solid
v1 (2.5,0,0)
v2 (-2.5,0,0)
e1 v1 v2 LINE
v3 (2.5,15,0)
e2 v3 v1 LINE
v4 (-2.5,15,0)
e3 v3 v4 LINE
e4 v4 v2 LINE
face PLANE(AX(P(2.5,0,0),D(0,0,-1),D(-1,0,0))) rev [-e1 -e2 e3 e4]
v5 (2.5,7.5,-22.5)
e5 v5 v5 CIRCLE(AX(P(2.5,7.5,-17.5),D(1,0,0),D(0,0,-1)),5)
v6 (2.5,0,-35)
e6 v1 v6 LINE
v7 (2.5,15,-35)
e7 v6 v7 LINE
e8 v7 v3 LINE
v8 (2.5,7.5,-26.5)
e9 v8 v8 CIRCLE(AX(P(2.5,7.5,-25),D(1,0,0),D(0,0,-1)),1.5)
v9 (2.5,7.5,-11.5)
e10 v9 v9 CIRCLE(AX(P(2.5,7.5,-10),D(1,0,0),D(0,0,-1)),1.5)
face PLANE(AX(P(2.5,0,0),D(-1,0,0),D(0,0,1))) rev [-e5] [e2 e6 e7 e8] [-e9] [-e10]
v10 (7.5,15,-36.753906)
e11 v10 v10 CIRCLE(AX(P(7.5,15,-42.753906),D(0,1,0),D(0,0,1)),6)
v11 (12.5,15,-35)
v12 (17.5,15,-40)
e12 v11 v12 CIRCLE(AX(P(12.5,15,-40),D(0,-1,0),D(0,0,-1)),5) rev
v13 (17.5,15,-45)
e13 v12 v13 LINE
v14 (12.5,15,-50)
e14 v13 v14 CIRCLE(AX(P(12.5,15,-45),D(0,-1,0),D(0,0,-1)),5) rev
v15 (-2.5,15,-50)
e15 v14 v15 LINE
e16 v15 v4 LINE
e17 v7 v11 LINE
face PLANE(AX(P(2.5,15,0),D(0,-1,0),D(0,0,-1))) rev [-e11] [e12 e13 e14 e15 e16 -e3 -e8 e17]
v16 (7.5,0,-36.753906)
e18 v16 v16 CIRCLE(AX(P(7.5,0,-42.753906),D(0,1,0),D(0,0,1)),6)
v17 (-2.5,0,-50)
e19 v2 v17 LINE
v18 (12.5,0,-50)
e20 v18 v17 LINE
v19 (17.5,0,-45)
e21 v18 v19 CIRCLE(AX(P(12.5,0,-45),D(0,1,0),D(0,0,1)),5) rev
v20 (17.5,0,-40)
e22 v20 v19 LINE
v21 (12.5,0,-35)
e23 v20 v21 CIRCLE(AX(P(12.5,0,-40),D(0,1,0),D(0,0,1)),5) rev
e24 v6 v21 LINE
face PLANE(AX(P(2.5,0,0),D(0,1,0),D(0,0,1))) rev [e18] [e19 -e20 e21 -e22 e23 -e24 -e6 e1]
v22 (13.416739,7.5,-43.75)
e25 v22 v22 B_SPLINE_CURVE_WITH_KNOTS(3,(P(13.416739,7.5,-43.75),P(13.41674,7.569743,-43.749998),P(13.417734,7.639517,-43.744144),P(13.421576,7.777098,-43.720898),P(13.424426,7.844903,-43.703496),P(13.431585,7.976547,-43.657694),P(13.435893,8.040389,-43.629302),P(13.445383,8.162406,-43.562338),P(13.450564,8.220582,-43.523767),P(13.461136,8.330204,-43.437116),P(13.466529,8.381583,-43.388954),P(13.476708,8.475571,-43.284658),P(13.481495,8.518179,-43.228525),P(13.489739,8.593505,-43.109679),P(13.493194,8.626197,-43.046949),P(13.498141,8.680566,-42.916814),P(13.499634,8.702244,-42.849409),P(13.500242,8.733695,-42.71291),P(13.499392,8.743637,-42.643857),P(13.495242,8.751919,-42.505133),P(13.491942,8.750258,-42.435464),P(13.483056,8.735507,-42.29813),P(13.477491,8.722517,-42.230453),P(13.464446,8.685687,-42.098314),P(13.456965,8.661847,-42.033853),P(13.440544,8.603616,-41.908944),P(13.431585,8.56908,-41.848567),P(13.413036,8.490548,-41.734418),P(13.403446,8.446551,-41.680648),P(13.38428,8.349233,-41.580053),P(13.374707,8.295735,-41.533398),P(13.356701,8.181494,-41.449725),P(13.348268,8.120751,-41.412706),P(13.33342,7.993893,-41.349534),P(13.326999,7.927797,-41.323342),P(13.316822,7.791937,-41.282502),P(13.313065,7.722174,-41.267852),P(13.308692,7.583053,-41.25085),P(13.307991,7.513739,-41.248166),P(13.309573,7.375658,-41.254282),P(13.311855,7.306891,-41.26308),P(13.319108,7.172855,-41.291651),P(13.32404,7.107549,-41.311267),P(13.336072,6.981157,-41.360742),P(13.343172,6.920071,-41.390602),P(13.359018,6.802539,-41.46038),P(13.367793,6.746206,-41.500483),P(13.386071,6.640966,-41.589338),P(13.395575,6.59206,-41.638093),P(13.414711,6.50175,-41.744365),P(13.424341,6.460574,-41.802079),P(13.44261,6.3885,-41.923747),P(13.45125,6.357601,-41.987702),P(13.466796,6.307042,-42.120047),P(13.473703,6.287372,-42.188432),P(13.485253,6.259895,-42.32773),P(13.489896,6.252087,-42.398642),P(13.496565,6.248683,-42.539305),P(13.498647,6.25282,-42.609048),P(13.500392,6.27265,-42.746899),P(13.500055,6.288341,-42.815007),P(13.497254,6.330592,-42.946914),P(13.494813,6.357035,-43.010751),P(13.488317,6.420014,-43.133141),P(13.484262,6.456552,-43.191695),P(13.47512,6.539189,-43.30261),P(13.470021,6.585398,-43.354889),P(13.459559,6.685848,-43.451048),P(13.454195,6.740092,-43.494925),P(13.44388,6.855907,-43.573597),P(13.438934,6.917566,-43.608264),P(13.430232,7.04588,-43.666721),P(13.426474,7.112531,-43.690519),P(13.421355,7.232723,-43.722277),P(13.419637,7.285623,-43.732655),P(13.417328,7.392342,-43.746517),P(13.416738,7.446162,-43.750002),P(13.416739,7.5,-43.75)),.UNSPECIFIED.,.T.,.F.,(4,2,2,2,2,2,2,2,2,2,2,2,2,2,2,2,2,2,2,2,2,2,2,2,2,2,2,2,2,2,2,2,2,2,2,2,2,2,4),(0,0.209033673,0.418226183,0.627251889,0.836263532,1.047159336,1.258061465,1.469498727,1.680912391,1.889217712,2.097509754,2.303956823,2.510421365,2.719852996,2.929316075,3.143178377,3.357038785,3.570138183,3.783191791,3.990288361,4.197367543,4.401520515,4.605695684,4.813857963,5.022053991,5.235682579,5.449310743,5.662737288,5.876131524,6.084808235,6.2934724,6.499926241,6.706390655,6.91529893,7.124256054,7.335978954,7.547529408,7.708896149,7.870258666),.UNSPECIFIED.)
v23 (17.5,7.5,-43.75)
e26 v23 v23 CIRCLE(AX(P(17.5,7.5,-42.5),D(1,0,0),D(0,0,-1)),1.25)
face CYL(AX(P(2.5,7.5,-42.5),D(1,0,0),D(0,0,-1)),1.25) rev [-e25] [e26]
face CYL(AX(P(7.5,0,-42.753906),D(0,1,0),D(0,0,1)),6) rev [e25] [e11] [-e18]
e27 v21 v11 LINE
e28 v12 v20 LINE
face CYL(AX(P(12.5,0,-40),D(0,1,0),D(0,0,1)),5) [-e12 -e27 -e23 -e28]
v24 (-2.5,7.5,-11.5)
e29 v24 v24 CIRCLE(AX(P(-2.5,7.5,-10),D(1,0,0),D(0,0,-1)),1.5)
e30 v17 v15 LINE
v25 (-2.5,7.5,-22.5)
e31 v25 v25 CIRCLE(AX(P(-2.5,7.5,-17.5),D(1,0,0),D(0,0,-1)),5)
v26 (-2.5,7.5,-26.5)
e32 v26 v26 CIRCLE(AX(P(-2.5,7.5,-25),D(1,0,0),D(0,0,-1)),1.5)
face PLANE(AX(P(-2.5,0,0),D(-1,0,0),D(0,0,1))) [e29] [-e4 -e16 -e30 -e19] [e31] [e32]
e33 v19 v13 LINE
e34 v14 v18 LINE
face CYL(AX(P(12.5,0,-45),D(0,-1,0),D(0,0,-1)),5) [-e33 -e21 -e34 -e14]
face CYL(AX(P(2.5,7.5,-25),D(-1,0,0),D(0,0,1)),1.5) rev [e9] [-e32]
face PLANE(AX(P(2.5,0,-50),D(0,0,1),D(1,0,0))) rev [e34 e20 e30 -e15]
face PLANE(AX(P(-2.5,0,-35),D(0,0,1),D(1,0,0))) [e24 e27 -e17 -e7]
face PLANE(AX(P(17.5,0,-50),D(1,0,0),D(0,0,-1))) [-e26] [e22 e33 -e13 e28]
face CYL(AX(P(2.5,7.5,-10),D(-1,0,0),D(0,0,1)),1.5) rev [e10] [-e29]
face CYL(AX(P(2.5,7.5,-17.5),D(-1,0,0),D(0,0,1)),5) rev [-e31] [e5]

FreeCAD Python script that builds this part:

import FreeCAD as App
import Part
import Sketcher


def edges_at(feature, points):
    """Names of the edges that pass closest to the given points."""
    edges = feature.Shape.Edges
    near = lambda p: min(range(len(edges)), key=lambda i: edges[i].distToShape(Part.Vertex(*p))[0])
    return sorted({f"Edge{near(p) + 1}" for p in points})

doc = App.newDocument("Part")
body = doc.addObject("PartDesign::Body", "Body")

# Sketch on YZ plane
sketch1 = body.newObject("Sketcher::SketchObject", "Sketch")
sketch1.AttachmentSupport = (doc.getObject("YZ_Plane"), [""])
sketch1.MapMode = "FlatFace"
sketch1.addGeometry([
    Part.LineSegment(App.Vector(15, 0, 0), App.Vector(0, 0, 0)),  # 0
    Part.LineSegment(App.Vector(0, 0, 0), App.Vector(0, -50, 0)),  # 1
    Part.LineSegment(App.Vector(0, -50, 0), App.Vector(15, -50, 0)),  # 2
    Part.LineSegment(App.Vector(15, -50, 0), App.Vector(15, 0, 0)),  # 3
    Part.Circle(App.Vector(7.5, -10, 0), App.Vector(0, 0, 1), 1.5),  # 4
    Part.Circle(App.Vector(7.5, -17.5, 0), App.Vector(0, 0, 1), 5),  # 5
    Part.Circle(App.Vector(7.5, -25, 0), App.Vector(0, 0, 1), 1.5),  # 6
], False)
sketch1.addConstraint([
    Sketcher.Constraint("Coincident", 0, 2, 1, 1),
    Sketcher.Constraint("Coincident", 1, 2, 2, 1),
    Sketcher.Constraint("Coincident", 2, 2, 3, 1),
    Sketcher.Constraint("Coincident", 3, 2, 0, 1),
    Sketcher.Constraint("Horizontal", 0),
    Sketcher.Constraint("Vertical", 1),
    Sketcher.Constraint("Horizontal", 2),
    Sketcher.Constraint("Vertical", 3),
    Sketcher.Constraint("Coincident", 0, 2, -1, 1),
    Sketcher.Constraint("Equal", 4, 6),
    Sketcher.Constraint("Vertical", 4, 3, 5, 3),
    Sketcher.Constraint("Vertical", 5, 3, 6, 3),
    Sketcher.Constraint("Diameter", 4, 3.0),
    Sketcher.Constraint("Diameter", 5, 10.0),
    Sketcher.Constraint("DistanceX", 0, 2, 0, 1, 15.0),
    Sketcher.Constraint("DistanceY", 1, 2, 1, 1, 50.0),
    Sketcher.Constraint("DistanceY", 4, 3, -1, 1, 10.0),
    Sketcher.Constraint("DistanceY", 6, 3, -1, 1, 25.0),
    Sketcher.Constraint("DistanceX", -1, 1, 4, 3, 7.5),
    Sketcher.Constraint("DistanceY", 5, 3, -1, 1, 17.5),
])
pad1 = body.newObject("PartDesign::Pad", "Pad")
pad1.Profile = sketch1
pad1.Length = 5
pad1.Midplane = True

# Sketch on XZ plane
sketch2 = body.newObject("Sketcher::SketchObject", "Sketch001")
sketch2.AttachmentSupport = (doc.getObject("XZ_Plane"), [""])
sketch2.MapMode = "FlatFace"
sketch2.AttachmentOffset = App.Placement(App.Vector(0, 0, -15), App.Rotation())
sketch2.addGeometry(Part.Circle(App.Vector(8, -43, 0), App.Vector(0, 0, 1), 6), False)
sketch2.addConstraint([
    Sketcher.Constraint("Diameter", 0, 12.0),
    Sketcher.Constraint("DistanceX", -1, 1, 0, 3, 7.5),
    Sketcher.Constraint("DistanceY", 0, 3, -1, 1, 42.753906),
])
pocket1 = body.newObject("PartDesign::Pocket", "Pocket")
pocket1.Profile = sketch2
pocket1.Length = 1000
pocket1.Reversed = True

# Sketch on XZ plane
sketch3 = body.newObject("Sketcher::SketchObject", "Sketch002")
sketch3.AttachmentSupport = (doc.getObject("XZ_Plane"), [""])
sketch3.MapMode = "FlatFace"
sketch3.AttachmentOffset = App.Placement(App.Vector(0, 0, -15), App.Rotation())
sketch3.addGeometry([
    Part.LineSegment(App.Vector(-2, -50, 0), App.Vector(-2, -35, 0)),
    Part.LineSegment(App.Vector(-2, -35, 0), App.Vector(18, -35, 0)),
    Part.LineSegment(App.Vector(18, -35, 0), App.Vector(18, -50, 0)),
    Part.LineSegment(App.Vector(18, -50, 0), App.Vector(-2, -50, 0)),
], False)
sketch3.addConstraint([
    Sketcher.Constraint("Coincident", 0, 2, 1, 1),
    Sketcher.Constraint("Coincident", 1, 2, 2, 1),
    Sketcher.Constraint("Coincident", 2, 2, 3, 1),
    Sketcher.Constraint("Coincident", 3, 2, 0, 1),
    Sketcher.Constraint("Vertical", 0),
    Sketcher.Constraint("Horizontal", 1),
    Sketcher.Constraint("Vertical", 2),
    Sketcher.Constraint("Horizontal", 3),
    Sketcher.Constraint("DistanceX", 1, 1, 1, 2, 20.0),
    Sketcher.Constraint("DistanceY", 0, 1, 0, 2, 15.0),
    Sketcher.Constraint("DistanceY", 0, 2, -1, 1, 35.0),
    Sketcher.Constraint("DistanceX", 0, 2, -1, 1, 2.5),
])
pad2 = body.newObject("PartDesign::Pad", "Pad001")
pad2.Profile = sketch3
pad2.Length = 15

# Sketch on XZ plane
sketch4 = body.newObject("Sketcher::SketchObject", "Sketch003")
sketch4.AttachmentSupport = (doc.getObject("XZ_Plane"), [""])
sketch4.MapMode = "FlatFace"
sketch4.AttachmentOffset = App.Placement(App.Vector(0, 0, -15), App.Rotation())
sketch4.addGeometry(Part.Circle(App.Vector(8, -43, 0), App.Vector(0, 0, 1), 6), False)
sketch4.addConstraint([
    Sketcher.Constraint("Diameter", 0, 12.0),
    Sketcher.Constraint("DistanceX", -1, 1, 0, 3, 7.5),
    Sketcher.Constraint("DistanceY", 0, 3, -1, 1, 42.753906),
])
pocket2 = body.newObject("PartDesign::Pocket", "Pocket001")
pocket2.Profile = sketch4
pocket2.Length = 15
pocket2.Reversed = True
doc.recompute()

fillet = body.newObject("PartDesign::Fillet", "Fillet")
fillet.Base = (pocket2, edges_at(pocket2, [(17.5, 7.5, -35), (17.5, 7.5, -50)]))
fillet.Radius = 5

# Sketch on YZ plane
sketch5 = body.newObject("Sketcher::SketchObject", "Sketch004")
sketch5.AttachmentSupport = (doc.getObject("YZ_Plane"), [""])
sketch5.MapMode = "FlatFace"
sketch5.AttachmentOffset = App.Placement(App.Vector(0, 0, 17.5), App.Rotation())
sketch5.addGeometry(Part.Circle(App.Vector(7.5, -42.5, 0), App.Vector(0, 0, 1), 1.2), False)
sketch5.addConstraint([
    Sketcher.Constraint("Diameter", 0, 2.5),
    Sketcher.Constraint("DistanceX", -1, 1, 0, 3, 7.5),
    Sketcher.Constraint("DistanceY", 0, 3, -1, 1, 42.5),
])
pocket3 = body.newObject("PartDesign::Pocket", "Pocket002")
pocket3.Profile = sketch5
pocket3.Length = 15

doc.recompute()
